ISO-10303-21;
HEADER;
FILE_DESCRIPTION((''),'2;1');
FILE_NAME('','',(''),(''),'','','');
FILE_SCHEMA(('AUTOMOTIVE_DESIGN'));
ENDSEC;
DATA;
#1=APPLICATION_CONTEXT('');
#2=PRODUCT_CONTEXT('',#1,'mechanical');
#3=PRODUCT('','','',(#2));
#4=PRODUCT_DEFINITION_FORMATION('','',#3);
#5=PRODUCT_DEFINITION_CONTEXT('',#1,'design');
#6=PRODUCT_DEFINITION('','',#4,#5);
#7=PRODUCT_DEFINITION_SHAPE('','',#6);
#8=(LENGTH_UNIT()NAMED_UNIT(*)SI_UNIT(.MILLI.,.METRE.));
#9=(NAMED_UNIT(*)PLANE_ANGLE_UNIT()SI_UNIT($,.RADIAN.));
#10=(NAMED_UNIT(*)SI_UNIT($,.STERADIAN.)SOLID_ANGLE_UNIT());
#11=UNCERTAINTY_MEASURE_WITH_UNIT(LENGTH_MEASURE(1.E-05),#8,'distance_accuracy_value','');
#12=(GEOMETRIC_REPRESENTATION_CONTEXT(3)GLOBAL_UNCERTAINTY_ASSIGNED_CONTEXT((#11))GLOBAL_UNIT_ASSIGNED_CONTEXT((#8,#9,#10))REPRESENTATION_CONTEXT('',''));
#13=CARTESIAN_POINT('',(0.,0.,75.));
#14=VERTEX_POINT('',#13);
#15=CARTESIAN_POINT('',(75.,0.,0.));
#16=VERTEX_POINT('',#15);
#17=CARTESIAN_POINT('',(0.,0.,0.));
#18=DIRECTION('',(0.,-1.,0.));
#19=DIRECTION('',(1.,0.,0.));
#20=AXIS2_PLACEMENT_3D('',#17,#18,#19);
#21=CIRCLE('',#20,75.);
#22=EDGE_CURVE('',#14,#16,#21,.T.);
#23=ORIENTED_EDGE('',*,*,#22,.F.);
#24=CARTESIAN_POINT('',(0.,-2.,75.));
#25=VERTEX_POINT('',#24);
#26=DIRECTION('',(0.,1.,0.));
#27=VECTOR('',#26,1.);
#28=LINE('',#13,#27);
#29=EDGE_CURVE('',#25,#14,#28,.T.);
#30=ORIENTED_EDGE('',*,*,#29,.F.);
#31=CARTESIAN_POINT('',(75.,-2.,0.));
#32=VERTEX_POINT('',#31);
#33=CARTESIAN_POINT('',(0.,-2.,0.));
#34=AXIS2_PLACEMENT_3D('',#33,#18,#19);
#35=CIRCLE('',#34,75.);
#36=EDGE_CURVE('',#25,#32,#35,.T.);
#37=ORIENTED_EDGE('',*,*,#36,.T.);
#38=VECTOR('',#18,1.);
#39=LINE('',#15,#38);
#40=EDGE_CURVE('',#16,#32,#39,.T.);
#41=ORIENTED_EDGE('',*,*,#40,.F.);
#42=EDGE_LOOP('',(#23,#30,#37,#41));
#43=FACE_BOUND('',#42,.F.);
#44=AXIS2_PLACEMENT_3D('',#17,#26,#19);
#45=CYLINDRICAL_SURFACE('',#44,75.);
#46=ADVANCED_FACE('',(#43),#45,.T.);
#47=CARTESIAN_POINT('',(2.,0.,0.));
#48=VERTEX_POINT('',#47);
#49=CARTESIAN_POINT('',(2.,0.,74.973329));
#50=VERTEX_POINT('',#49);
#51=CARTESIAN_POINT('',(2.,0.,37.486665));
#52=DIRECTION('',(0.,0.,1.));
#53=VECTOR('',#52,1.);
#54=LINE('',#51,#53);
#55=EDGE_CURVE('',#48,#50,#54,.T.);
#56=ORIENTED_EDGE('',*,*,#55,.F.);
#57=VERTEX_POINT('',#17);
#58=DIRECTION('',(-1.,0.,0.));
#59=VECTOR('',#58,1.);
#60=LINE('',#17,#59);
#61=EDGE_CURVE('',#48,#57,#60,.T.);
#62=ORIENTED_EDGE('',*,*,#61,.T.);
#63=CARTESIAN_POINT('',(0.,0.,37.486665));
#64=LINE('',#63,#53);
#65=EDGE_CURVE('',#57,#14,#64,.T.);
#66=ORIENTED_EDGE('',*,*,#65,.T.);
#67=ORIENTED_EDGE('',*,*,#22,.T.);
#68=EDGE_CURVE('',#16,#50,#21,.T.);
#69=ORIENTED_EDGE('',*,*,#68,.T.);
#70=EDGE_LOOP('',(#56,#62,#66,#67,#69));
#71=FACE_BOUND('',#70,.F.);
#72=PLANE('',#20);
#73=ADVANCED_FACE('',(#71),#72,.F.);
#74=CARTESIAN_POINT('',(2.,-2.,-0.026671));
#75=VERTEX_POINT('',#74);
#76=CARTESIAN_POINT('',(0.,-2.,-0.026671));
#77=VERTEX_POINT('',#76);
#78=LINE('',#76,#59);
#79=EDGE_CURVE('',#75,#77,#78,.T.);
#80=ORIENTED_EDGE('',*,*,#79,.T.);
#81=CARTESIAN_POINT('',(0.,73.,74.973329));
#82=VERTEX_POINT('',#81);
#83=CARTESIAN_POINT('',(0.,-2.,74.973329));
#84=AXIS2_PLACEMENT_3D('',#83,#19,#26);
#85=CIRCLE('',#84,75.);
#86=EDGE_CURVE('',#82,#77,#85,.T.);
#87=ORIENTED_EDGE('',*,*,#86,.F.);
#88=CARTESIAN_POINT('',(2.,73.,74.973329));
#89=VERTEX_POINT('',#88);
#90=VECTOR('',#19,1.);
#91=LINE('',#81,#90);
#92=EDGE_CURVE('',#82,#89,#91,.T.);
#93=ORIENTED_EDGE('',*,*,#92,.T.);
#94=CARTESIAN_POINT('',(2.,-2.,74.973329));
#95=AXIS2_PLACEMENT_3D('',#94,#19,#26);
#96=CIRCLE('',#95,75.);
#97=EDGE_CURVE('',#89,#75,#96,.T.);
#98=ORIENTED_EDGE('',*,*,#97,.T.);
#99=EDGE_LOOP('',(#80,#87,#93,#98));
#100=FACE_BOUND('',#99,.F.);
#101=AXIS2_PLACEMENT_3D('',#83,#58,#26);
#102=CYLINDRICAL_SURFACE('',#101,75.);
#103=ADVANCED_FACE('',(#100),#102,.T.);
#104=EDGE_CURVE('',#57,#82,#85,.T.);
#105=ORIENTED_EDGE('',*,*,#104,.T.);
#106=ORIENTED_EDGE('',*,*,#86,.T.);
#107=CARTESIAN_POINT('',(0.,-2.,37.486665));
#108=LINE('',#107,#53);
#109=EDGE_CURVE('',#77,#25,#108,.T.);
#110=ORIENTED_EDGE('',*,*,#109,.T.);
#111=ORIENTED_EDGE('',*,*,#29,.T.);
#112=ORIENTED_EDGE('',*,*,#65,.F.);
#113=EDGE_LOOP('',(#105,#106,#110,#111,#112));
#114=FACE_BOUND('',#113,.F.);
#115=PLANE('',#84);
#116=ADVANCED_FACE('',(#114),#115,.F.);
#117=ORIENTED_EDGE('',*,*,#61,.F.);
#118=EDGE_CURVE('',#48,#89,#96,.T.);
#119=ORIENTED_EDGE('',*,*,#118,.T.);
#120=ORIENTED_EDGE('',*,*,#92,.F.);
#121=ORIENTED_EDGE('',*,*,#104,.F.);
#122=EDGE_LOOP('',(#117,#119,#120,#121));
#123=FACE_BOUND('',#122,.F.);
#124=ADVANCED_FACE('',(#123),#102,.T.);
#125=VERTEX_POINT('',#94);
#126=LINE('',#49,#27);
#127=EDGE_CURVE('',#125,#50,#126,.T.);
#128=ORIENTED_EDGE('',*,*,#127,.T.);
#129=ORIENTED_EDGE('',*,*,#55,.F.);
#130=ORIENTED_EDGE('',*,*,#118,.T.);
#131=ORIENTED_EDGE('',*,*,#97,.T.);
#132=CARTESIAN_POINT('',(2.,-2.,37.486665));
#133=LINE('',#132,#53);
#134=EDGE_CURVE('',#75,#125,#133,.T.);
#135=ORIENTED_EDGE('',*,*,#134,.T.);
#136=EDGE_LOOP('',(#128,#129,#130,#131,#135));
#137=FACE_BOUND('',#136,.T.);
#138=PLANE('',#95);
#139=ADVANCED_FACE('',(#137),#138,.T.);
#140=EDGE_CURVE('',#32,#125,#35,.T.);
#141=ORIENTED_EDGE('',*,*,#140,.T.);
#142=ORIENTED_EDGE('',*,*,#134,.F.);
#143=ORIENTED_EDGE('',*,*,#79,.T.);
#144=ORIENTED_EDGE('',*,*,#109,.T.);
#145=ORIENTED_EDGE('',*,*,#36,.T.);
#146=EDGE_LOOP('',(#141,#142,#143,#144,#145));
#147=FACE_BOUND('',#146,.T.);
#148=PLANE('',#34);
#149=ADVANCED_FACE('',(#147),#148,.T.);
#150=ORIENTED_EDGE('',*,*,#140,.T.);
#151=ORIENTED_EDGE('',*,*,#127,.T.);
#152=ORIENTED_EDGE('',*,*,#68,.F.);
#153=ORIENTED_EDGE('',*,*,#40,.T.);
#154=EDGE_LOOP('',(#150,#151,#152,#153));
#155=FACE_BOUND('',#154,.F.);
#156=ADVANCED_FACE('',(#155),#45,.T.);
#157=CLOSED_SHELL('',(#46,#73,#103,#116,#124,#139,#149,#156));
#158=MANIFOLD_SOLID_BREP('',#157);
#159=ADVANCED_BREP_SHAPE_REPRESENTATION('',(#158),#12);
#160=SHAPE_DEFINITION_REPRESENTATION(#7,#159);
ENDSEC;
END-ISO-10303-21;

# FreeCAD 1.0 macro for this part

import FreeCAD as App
import Part
import Sketcher
from FreeCAD import Vector

doc = App.newDocument("Part")
body = doc.addObject("PartDesign::Body", "Body")

sketch1 = body.newObject("Sketcher::SketchObject", "Sketch")
sketch1.AttachmentSupport = (doc.getObject("XZ_Plane"), [""])
sketch1.MapMode = "FlatFace"
sketch1.addGeometry(Part.Circle(Vector(0, 0, 0), Vector(0, 0, 1), 75), False)
sketch1.addConstraint(Sketcher.Constraint("Coincident", 0, 3, -1, 1))
sketch1.addConstraint(Sketcher.Constraint("Diameter", 0, 150.0))
pad1 = body.newObject("PartDesign::Pad", "Pad")
pad1.Profile = sketch1
pad1.Length = 2

sketch2 = body.newObject("Sketcher::SketchObject", "Sketch001")
sketch2.AttachmentSupport = (doc.getObject("YZ_Plane"), [""])
sketch2.MapMode = "FlatFace"
sketch2.addGeometry(Part.Circle(Vector(-2, 75, 0), Vector(0, 0, 1), 75), False)
sketch2.addConstraint(Sketcher.Constraint("Diameter", 0, 150.0))
sketch2.addConstraint(Sketcher.Constraint("DistanceX", 0, 3, -1, 1, 2.0))
sketch2.addConstraint(Sketcher.Constraint("DistanceY", -1, 1, 0, 3, 74.973329))
pad2 = body.newObject("PartDesign::Pad", "Pad001")
pad2.Profile = sketch2
pad2.Length = 2

doc.recompute()
